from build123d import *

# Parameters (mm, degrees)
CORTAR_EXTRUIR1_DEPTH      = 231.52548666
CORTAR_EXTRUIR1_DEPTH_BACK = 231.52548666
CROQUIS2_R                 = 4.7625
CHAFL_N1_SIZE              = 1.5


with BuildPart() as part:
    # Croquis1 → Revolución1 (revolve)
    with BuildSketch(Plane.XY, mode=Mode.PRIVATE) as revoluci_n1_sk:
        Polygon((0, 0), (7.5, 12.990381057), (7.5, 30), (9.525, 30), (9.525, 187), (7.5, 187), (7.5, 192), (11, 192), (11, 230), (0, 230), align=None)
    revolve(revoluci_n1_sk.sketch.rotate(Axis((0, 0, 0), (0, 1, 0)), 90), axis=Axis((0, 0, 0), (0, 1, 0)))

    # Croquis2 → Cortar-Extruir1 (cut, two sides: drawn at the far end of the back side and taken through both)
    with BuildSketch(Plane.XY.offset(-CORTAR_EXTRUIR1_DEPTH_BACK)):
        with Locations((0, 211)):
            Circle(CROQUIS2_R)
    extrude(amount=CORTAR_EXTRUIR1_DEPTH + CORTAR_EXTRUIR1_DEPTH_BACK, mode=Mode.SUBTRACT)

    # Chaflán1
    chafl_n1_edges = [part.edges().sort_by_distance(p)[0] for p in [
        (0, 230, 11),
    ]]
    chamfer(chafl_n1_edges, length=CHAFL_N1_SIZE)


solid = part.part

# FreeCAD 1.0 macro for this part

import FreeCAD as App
import Part
import Sketcher
Q = App.Units.Quantity


def edges_at(feature, points):
    """Names of the edges that pass closest to the given points."""
    edges = feature.Shape.Edges
    near = lambda p: min(range(len(edges)), key=lambda i: edges[i].distToShape(Part.Vertex(*p))[0])
    return sorted({f"Edge{near(p) + 1}" for p in points})

doc = App.newDocument("Part")
body = doc.addObject("PartDesign::Body", "Body")

sketch1 = body.newObject("Sketcher::SketchObject", "Sketch")
sketch1.AttachmentSupport = (doc.getObject("XY_Plane"), [""])
sketch1.MapMode = "FlatFace"
sketch1.addGeometry([
    Part.LineSegment(App.Vector(0, 0, 0), App.Vector(7.5, 12.990381, 0)),
    Part.LineSegment(App.Vector(7.5, 12.990381, 0), App.Vector(7.5, 30, 0)),
    Part.LineSegment(App.Vector(7.5, 30, 0), App.Vector(9.525, 30, 0)),
    Part.LineSegment(App.Vector(9.525, 30, 0), App.Vector(9.525, 187, 0)),
    Part.LineSegment(App.Vector(9.525, 187, 0), App.Vector(7.5, 187, 0)),
    Part.LineSegment(App.Vector(7.5, 187, 0), App.Vector(7.5, 192, 0)),
    Part.LineSegment(App.Vector(7.5, 192, 0), App.Vector(11, 192, 0)),
    Part.LineSegment(App.Vector(11, 192, 0), App.Vector(11, 230, 0)),
    Part.LineSegment(App.Vector(11, 230, 0), App.Vector(0, 230, 0)),
    Part.LineSegment(App.Vector(0, 230, 0), App.Vector(0, 0, 0)),
], False)
sketch1.addConstraint([
    Sketcher.Constraint("Coincident", 0, 2, 1, 1),
    Sketcher.Constraint("Coincident", 1, 2, 2, 1),
    Sketcher.Constraint("Coincident", 2, 2, 3, 1),
    Sketcher.Constraint("Coincident", 3, 2, 4, 1),
    Sketcher.Constraint("Coincident", 4, 2, 5, 1),
    Sketcher.Constraint("Coincident", 5, 2, 6, 1),
    Sketcher.Constraint("Coincident", 6, 2, 7, 1),
    Sketcher.Constraint("Coincident", 7, 2, 8, 1),
    Sketcher.Constraint("Coincident", 8, 2, 9, 1),
    Sketcher.Constraint("Coincident", 9, 2, 0, 1),
    Sketcher.Constraint("Vertical", 1),
    Sketcher.Constraint("Horizontal", 2),
    Sketcher.Constraint("Vertical", 3),
    Sketcher.Constraint("Horizontal", 4),
    Sketcher.Constraint("Vertical", 5),
    Sketcher.Constraint("Horizontal", 6),
    Sketcher.Constraint("Vertical", 7),
    Sketcher.Constraint("Horizontal", 8),
    Sketcher.Constraint("Vertical", 9),
    Sketcher.Constraint("Coincident", 9, 2, -1, 1),
    Sketcher.Constraint("Vertical", 1, 2, 4, 2),
    Sketcher.Constraint("DistanceX", 8, 2, 8, 1, Q("11 mm")),
    Sketcher.Constraint("DistanceY", 3, 1, 3, 2, Q("157 mm")),
    Sketcher.Constraint("DistanceY", 5, 1, 5, 2, Q("5 mm")),
    Sketcher.Constraint("DistanceY", 7, 1, 7, 2, Q("38 mm")),
    Sketcher.Constraint("DistanceY", 9, 2, 9, 1, Q("230 mm")),
    Sketcher.Constraint("Angle", 0, Q("60 deg")),
    Sketcher.Constraint("Distance", 0, Q("15 mm")),
    Sketcher.Constraint("DistanceX", 2, 1, 2, 2, Q("2.025 mm")),
])
revolution = body.newObject("PartDesign::Revolution", "Revolution")
revolution.Profile = sketch1
revolution.ReferenceAxis = (sketch1, ["V_Axis"])
revolution.Angle = 360

sketch2 = body.newObject("Sketcher::SketchObject", "Sketch001")
sketch2.AttachmentSupport = (doc.getObject("XY_Plane"), [""])
sketch2.MapMode = "FlatFace"
sketch2.addGeometry(Part.Circle(App.Vector(0, 211, 0), App.Vector(0, 0, 1), 4.7625), False)
sketch2.addConstraint([
    Sketcher.Constraint("PointOnObject", 0, 3, -2),
    Sketcher.Constraint("Diameter", 0, Q("9.525 mm")),
    Sketcher.Constraint("DistanceY", -1, 1, 0, 3, Q("211 mm")),
])
pocket1 = body.newObject("PartDesign::Pocket", "Pocket")
pocket1.Profile = sketch2
pocket1.Type = "ThroughAll"
pocket1.Midplane = True
doc.recompute()

chamfer = body.newObject("PartDesign::Chamfer", "Chamfer")
chamfer.Base = (pocket1, edges_at(pocket1, [(0, 230, 11)]))
chamfer.Size = 1.5

doc.recompute()
